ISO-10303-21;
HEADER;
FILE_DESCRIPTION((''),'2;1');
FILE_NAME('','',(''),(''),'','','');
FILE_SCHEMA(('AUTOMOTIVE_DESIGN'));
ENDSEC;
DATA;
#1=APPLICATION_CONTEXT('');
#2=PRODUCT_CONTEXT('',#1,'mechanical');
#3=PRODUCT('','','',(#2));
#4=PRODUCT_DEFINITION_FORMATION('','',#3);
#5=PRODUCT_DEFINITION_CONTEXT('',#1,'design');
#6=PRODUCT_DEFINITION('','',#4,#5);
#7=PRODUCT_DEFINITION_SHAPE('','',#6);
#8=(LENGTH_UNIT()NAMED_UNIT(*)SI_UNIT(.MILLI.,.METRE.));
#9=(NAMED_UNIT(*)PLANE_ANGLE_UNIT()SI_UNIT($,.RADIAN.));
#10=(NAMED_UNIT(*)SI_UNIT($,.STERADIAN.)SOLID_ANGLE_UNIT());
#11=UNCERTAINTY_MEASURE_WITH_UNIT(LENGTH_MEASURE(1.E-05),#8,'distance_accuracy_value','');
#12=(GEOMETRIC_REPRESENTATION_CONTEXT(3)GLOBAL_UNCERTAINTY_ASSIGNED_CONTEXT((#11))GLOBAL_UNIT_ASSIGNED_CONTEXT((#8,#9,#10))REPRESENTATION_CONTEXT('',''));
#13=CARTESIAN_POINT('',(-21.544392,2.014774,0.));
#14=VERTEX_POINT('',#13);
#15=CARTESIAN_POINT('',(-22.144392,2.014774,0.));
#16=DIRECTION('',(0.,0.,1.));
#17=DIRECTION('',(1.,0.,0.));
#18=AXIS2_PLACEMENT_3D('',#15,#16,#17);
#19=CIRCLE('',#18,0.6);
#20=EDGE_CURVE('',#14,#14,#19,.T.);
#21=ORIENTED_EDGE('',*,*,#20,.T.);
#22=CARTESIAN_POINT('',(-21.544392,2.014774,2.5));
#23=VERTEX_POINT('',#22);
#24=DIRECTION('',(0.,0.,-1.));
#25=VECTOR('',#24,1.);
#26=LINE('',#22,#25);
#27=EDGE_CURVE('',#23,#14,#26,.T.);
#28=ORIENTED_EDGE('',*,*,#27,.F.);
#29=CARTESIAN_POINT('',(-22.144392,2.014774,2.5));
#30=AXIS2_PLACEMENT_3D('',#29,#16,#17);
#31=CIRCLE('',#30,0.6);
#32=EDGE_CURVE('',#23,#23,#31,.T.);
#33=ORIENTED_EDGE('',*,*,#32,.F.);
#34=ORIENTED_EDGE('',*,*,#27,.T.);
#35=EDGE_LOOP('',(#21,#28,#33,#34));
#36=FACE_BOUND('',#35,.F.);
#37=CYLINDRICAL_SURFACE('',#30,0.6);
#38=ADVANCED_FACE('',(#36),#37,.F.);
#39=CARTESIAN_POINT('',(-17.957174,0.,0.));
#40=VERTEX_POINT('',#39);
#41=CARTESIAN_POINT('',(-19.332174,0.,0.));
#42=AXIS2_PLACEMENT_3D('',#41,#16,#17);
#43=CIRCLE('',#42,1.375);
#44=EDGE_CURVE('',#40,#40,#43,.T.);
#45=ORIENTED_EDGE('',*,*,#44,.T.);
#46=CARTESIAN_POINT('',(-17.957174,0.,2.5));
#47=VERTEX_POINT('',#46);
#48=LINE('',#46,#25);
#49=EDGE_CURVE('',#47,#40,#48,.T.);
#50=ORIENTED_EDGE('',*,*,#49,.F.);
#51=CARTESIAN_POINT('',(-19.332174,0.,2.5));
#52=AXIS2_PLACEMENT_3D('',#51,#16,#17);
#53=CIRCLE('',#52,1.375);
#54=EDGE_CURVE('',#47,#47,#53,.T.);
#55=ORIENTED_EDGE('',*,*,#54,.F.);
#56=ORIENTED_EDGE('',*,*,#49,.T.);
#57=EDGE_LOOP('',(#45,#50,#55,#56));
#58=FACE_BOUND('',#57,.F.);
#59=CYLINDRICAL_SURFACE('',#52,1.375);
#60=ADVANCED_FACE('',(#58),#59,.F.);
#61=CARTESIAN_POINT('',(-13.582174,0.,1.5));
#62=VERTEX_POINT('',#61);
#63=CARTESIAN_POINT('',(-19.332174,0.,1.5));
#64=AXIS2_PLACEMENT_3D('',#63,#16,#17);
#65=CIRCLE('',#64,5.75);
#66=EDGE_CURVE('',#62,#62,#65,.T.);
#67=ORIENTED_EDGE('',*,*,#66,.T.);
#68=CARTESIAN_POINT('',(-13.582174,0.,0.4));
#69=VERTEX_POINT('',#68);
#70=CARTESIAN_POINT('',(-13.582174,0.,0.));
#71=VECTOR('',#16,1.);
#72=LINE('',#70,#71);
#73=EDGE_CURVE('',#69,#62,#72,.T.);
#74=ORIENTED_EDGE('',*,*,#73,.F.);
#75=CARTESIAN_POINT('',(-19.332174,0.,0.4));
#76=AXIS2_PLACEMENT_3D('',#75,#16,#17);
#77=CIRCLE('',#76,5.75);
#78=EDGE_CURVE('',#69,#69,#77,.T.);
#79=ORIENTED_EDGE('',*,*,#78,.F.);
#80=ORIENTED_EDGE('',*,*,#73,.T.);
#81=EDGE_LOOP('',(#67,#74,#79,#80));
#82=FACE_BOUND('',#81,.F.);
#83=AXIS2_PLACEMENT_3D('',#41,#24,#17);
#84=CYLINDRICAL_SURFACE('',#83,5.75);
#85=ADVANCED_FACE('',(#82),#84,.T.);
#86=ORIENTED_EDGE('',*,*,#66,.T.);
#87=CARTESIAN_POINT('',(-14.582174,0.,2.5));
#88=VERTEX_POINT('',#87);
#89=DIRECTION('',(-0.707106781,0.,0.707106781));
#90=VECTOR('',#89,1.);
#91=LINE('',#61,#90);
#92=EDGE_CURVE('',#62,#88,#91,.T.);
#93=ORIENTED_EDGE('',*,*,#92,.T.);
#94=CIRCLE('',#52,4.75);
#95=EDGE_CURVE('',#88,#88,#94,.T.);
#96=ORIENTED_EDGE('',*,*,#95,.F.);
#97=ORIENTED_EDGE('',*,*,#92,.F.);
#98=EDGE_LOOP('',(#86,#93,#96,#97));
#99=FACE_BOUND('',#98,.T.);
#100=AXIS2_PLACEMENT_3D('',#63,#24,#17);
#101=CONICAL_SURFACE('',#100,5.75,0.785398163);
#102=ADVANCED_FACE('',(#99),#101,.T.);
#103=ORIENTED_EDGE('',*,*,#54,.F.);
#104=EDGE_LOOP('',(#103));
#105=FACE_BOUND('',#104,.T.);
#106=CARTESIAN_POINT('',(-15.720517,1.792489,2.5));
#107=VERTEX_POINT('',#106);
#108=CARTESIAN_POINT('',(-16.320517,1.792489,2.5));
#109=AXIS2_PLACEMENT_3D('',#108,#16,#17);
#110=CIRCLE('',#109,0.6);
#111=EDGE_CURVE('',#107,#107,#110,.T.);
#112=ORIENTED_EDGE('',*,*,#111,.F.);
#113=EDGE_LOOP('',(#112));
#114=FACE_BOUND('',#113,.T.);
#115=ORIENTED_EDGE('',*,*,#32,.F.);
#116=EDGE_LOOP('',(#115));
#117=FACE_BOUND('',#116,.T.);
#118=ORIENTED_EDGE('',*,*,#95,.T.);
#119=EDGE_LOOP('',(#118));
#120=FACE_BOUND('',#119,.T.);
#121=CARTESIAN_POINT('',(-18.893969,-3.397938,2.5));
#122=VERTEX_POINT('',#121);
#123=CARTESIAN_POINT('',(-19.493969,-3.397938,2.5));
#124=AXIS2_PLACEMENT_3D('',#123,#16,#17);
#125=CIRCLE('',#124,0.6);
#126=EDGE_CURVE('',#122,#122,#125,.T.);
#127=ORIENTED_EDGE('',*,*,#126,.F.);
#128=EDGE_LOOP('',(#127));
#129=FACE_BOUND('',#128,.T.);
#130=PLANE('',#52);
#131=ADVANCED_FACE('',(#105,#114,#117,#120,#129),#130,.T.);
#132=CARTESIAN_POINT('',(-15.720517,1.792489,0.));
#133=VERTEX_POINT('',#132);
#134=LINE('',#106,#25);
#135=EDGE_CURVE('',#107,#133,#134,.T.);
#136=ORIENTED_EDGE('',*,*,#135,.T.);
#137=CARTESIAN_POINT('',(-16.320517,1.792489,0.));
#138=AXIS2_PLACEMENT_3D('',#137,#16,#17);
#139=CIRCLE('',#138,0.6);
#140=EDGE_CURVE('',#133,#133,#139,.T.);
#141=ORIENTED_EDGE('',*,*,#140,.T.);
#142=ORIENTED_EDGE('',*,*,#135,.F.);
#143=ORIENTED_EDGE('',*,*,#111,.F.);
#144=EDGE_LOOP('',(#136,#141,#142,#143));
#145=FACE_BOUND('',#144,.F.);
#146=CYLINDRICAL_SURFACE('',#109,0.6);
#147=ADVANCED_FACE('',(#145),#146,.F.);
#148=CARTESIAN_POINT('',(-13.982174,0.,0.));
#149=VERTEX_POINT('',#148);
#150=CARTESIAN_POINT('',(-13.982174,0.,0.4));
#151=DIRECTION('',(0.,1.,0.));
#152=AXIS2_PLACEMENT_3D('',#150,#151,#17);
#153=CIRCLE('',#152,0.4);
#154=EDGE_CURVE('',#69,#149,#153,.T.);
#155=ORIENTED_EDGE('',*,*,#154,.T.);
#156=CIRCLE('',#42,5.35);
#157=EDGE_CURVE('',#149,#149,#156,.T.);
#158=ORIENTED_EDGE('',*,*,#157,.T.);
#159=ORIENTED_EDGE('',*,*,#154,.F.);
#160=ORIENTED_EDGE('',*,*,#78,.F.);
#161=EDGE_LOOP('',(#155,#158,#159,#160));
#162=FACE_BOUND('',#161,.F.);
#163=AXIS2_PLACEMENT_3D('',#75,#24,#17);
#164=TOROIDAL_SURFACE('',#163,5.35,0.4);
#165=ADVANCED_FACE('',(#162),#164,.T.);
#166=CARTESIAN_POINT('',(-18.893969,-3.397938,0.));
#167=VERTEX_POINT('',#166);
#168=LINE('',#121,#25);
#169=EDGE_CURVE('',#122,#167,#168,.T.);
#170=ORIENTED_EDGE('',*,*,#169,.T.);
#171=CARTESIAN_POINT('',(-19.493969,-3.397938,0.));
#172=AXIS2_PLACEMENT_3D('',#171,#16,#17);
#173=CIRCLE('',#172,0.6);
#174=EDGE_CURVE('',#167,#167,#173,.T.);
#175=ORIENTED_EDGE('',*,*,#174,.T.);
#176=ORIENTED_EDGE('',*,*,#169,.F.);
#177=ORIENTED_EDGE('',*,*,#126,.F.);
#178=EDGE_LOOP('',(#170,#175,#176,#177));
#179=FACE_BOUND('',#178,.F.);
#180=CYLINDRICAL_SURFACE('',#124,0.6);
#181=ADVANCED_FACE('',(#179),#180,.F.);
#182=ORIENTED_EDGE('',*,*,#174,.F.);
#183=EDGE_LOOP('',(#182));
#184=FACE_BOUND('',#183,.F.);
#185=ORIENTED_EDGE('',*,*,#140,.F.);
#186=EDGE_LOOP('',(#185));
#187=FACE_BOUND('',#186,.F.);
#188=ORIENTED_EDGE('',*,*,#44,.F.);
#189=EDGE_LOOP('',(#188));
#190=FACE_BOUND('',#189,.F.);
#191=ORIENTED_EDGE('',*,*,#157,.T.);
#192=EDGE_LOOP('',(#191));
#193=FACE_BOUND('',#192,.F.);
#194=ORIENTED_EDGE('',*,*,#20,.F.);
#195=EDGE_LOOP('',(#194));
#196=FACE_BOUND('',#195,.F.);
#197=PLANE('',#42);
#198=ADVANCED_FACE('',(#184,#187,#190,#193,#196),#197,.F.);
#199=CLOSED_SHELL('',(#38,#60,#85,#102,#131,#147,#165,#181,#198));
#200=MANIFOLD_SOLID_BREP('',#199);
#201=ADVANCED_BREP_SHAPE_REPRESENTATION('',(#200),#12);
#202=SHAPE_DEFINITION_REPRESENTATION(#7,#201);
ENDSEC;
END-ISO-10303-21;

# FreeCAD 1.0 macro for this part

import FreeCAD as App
import Part
import Sketcher


def edges_at(feature, points):
    """Names of the edges that pass closest to the given points."""
    edges = feature.Shape.Edges
    near = lambda p: min(range(len(edges)), key=lambda i: edges[i].distToShape(Part.Vertex(*p))[0])
    return sorted({f"Edge{near(p) + 1}" for p in points})

doc = App.newDocument("Part")
body = doc.addObject("PartDesign::Body", "Body")

sketch1 = doc.addObject("Sketcher::SketchObject", "Sketch")
body.addObject(sketch1)
sketch1.AttachmentSupport = (doc.XY_Plane, [""])
sketch1.MapMode = "FlatFace"
sketch1.addGeometry(Part.Circle(App.Vector(-19, 0, 0), App.Vector(0, 0, 1), 6), False)
sketch1.addConstraint([
    Sketcher.Constraint("PointOnObject", 0, 3, -1),
    Sketcher.Constraint("Diameter", 0, 11.5),
    Sketcher.Constraint("DistanceX", 0, 3, -1, 1, 19.332174),
])
pad1 = doc.addObject("PartDesign::Pad", "Pad")
body.addObject(pad1)
pad1.Profile = sketch1
pad1.Length = 2.5

sketch2 = doc.addObject("Sketcher::SketchObject", "Sketch001")
body.addObject(sketch2)
sketch2.AttachmentSupport = (doc.XY_Plane, [""])
sketch2.MapMode = "FlatFace"
sketch2.AttachmentOffset = App.Placement(App.Vector(0, 0, 2.5), App.Rotation())
sketch2.addGeometry(Part.Circle(App.Vector(-19.3, 0, 0), App.Vector(0, 0, 1), 1.4), False)
sketch2.addConstraint([
    Sketcher.Constraint("PointOnObject", 0, 3, -1),
    Sketcher.Constraint("Diameter", 0, 2.75),
    Sketcher.Constraint("DistanceX", 0, 3, -1, 1, 19.332174),
])
pocket1 = doc.addObject("PartDesign::Pocket", "Pocket")
body.addObject(pocket1)
pocket1.Profile = sketch2
pocket1.Length = 25.4

sketch3 = doc.addObject("Sketcher::SketchObject", "Sketch002")
body.addObject(sketch3)
sketch3.AttachmentSupport = (doc.XY_Plane, [""])
sketch3.MapMode = "FlatFace"
sketch3.AttachmentOffset = App.Placement(App.Vector(0, 0, 2.5), App.Rotation())
sketch3.addGeometry(Part.Circle(App.Vector(-22.1, 2, 0), App.Vector(0, 0, 1), 0.6), False)
sketch3.addConstraint([
    Sketcher.Constraint("Diameter", 0, 1.2),
    Sketcher.Constraint("DistanceX", 0, 3, -1, 1, 22.144392),
    Sketcher.Constraint("DistanceY", -1, 1, 0, 3, 2.014774),
])
pocket2 = doc.addObject("PartDesign::Pocket", "Pocket001")
body.addObject(pocket2)
pocket2.Profile = sketch3
pocket2.Length = 25.4

sketch4 = doc.addObject("Sketcher::SketchObject", "Sketch003")
body.addObject(sketch4)
sketch4.AttachmentSupport = (doc.XY_Plane, [""])
sketch4.MapMode = "FlatFace"
sketch4.AttachmentOffset = App.Placement(App.Vector(0, 0, 2.5), App.Rotation())
sketch4.addGeometry(Part.Circle(App.Vector(-19.5, -3.4, 0), App.Vector(0, 0, 1), 0.6), False)
sketch4.addConstraint([
    Sketcher.Constraint("Diameter", 0, 1.2),
    Sketcher.Constraint("DistanceX", 0, 3, -1, 1, 19.493969),
    Sketcher.Constraint("DistanceY", 0, 3, -1, 1, 3.397938),
])
pocket3 = doc.addObject("PartDesign::Pocket", "Pocket002")
body.addObject(pocket3)
pocket3.Profile = sketch4
pocket3.Length = 25.4

sketch5 = doc.addObject("Sketcher::SketchObject", "Sketch004")
body.addObject(sketch5)
sketch5.AttachmentSupport = (doc.XY_Plane, [""])
sketch5.MapMode = "FlatFace"
sketch5.AttachmentOffset = App.Placement(App.Vector(0, 0, 2.5), App.Rotation())
sketch5.addGeometry(Part.Circle(App.Vector(-16.3, 1.8, 0), App.Vector(0, 0, 1), 0.6), False)
sketch5.addConstraint([
    Sketcher.Constraint("Diameter", 0, 1.2),
    Sketcher.Constraint("DistanceY", -1, 1, 0, 3, 1.792489),
    Sketcher.Constraint("DistanceX", 0, 3, -1, 1, 16.320517),
])
pocket4 = doc.addObject("PartDesign::Pocket", "Pocket003")
body.addObject(pocket4)
pocket4.Profile = sketch5
pocket4.Length = 25.4
doc.recompute()

chamfer = doc.addObject("PartDesign::Chamfer", "Chamfer")
body.addObject(chamfer)
chamfer.Base = (pocket4, edges_at(pocket4, [(-25.082, 0, 2.5)]))
chamfer.Size = 1
doc.recompute()

fillet = doc.addObject("PartDesign::Fillet", "Fillet")
body.addObject(fillet)
fillet.Base = (chamfer, edges_at(chamfer, [(-25.082, 0, 0)]))
fillet.Radius = 0.4

doc.recompute()
